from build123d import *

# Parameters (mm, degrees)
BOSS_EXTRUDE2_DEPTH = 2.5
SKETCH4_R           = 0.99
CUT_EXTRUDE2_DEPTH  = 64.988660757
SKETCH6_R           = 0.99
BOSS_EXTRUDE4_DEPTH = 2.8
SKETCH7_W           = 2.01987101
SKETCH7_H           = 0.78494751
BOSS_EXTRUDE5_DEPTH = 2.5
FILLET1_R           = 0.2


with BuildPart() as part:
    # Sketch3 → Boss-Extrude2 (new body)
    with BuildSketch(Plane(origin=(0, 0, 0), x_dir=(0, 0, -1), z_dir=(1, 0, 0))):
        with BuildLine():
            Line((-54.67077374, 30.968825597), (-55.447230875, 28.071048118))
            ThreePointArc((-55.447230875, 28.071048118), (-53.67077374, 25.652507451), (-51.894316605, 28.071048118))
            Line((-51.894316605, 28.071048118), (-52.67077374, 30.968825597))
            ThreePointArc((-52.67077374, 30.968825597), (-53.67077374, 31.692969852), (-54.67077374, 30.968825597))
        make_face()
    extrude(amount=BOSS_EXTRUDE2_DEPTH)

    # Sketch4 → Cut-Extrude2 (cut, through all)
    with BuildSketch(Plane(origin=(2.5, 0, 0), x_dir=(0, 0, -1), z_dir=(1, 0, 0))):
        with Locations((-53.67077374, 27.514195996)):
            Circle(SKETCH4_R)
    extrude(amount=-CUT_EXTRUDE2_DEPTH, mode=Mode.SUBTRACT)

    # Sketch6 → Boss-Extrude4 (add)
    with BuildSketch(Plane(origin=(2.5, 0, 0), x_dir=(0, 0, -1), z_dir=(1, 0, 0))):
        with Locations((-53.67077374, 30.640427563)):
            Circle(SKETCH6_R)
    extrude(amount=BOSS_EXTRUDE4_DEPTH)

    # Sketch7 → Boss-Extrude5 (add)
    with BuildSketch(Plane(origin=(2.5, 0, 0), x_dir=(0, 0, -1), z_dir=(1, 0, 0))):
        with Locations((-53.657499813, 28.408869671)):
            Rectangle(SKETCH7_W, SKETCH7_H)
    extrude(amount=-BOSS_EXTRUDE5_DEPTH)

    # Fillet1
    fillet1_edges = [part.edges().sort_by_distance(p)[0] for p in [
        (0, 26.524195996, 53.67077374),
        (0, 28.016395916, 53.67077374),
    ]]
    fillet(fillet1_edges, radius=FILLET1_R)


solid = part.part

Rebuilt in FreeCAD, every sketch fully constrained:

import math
import FreeCAD as App
import Part
import Sketcher
from FreeCAD import Vector
Q = App.Units.Quantity


def edges_at(feature, points):
    """Names of the edges that pass closest to the given points."""
    edges = feature.Shape.Edges
    near = lambda p: min(range(len(edges)), key=lambda i: edges[i].distToShape(Part.Vertex(*p))[0])
    return sorted({f"Edge{near(p) + 1}" for p in points})

doc = App.newDocument("Part")
body = doc.addObject("PartDesign::Body", "Body")

sketch1 = body.newObject("Sketcher::SketchObject", "Sketch")
sketch1.AttachmentSupport = (doc.getObject("YZ_Plane"), [""])
sketch1.MapMode = "FlatFace"
sketch1.addGeometry(Part.LineSegment(Vector(30.968826, 54.670774, 0), Vector(28.071048, 55.447231, 0)), False)
sketch1.addGeometry(Part.ArcOfCircle(Part.Circle(Vector(27.514196, 53.670774, 0), Vector(0, 0, 1), 1.861689), math.radians(72.595765), math.radians(287.404235)), False)
sketch1.addGeometry(Part.LineSegment(Vector(28.071048, 51.894317, 0), Vector(30.968826, 52.670774, 0)), False)
sketch1.addGeometry(Part.ArcOfCircle(Part.Circle(Vector(30.640428, 53.670774, 0), Vector(0, 0, 1), 1.052542), math.radians(-71.819922), math.radians(71.819922)), False)
sketch1.addConstraint(Sketcher.Constraint("Coincident", 0, 2, 1, 1))
sketch1.addConstraint(Sketcher.Constraint("Coincident", 1, 2, 2, 1))
sketch1.addConstraint(Sketcher.Constraint("Coincident", 2, 2, 3, 1))
sketch1.addConstraint(Sketcher.Constraint("Coincident", 3, 2, 0, 1))
sketch1.addConstraint(Sketcher.Constraint("Horizontal", 1, 3, 3, 3))
sketch1.addConstraint(Sketcher.Constraint("Vertical", 0, 2, 1, 2))
sketch1.addConstraint(Sketcher.Constraint("Vertical", 2, 2, 3, 2))
sketch1.addConstraint(Sketcher.Constraint("Angle", 0, Q("165 deg")))
sketch1.addConstraint(Sketcher.Constraint("Distance", 0, 3.0))
sketch1.addConstraint(Sketcher.Constraint("DistanceY", 2, 2, 3, 3, 1.0))
sketch1.addConstraint(Sketcher.Constraint("Radius", 1, 1.861689))
sketch1.addConstraint(Sketcher.Constraint("Radius", 3, 1.052542))
sketch1.addConstraint(Sketcher.Constraint("DistanceX", -1, 1, 0, 2, 28.071048))
sketch1.addConstraint(Sketcher.Constraint("DistanceY", -1, 1, 0, 2, 55.447231))
pad1 = body.newObject("PartDesign::Pad", "Pad")
pad1.Profile = sketch1
pad1.Length = 2.5

sketch2 = body.newObject("Sketcher::SketchObject", "Sketch001")
sketch2.AttachmentSupport = (doc.getObject("YZ_Plane"), [""])
sketch2.MapMode = "FlatFace"
sketch2.AttachmentOffset = App.Placement(Vector(0, 0, 2.5), App.Rotation())
sketch2.addGeometry(Part.Circle(Vector(27.514196, 53.670774, 0), Vector(0, 0, 1), 0.99), False)
sketch2.addConstraint(Sketcher.Constraint("Diameter", 0, 1.98))
sketch2.addConstraint(Sketcher.Constraint("DistanceX", -1, 1, 0, 3, 27.514196))
sketch2.addConstraint(Sketcher.Constraint("DistanceY", -1, 1, 0, 3, 53.670774))
pocket1 = body.newObject("PartDesign::Pocket", "Pocket")
pocket1.Profile = sketch2
pocket1.Type = "ThroughAll"

sketch3 = body.newObject("Sketcher::SketchObject", "Sketch002")
sketch3.AttachmentSupport = (doc.getObject("YZ_Plane"), [""])
sketch3.MapMode = "FlatFace"
sketch3.AttachmentOffset = App.Placement(Vector(0, 0, 2.5), App.Rotation())
sketch3.addGeometry(Part.Circle(Vector(30.640428, 53.670774, 0), Vector(0, 0, 1), 0.99), False)
sketch3.addConstraint(Sketcher.Constraint("Diameter", 0, 1.98))
sketch3.addConstraint(Sketcher.Constraint("DistanceX", -1, 1, 0, 3, 30.640428))
sketch3.addConstraint(Sketcher.Constraint("DistanceY", -1, 1, 0, 3, 53.670774))
pad2 = body.newObject("PartDesign::Pad", "Pad001")
pad2.Profile = sketch3
pad2.Length = 2.8

sketch4 = body.newObject("Sketcher::SketchObject", "Sketch003")
sketch4.AttachmentSupport = (doc.getObject("YZ_Plane"), [""])
sketch4.MapMode = "FlatFace"
sketch4.AttachmentOffset = App.Placement(Vector(0, 0, 2.5), App.Rotation())
sketch4.addGeometry(Part.LineSegment(Vector(28.801343, 54.667435, 0), Vector(28.016396, 54.667435, 0)), False)
sketch4.addGeometry(Part.LineSegment(Vector(28.016396, 54.667435, 0), Vector(28.016396, 52.647564, 0)), False)
sketch4.addGeometry(Part.LineSegment(Vector(28.016396, 52.647564, 0), Vector(28.801343, 52.647564, 0)), False)
sketch4.addGeometry(Part.LineSegment(Vector(28.801343, 52.647564, 0), Vector(28.801343, 54.667435, 0)), False)
sketch4.addConstraint(Sketcher.Constraint("Coincident", 0, 2, 1, 1))
sketch4.addConstraint(Sketcher.Constraint("Coincident", 1, 2, 2, 1))
sketch4.addConstraint(Sketcher.Constraint("Coincident", 2, 2, 3, 1))
sketch4.addConstraint(Sketcher.Constraint("Coincident", 3, 2, 0, 1))
sketch4.addConstraint(Sketcher.Constraint("Horizontal", 0))
sketch4.addConstraint(Sketcher.Constraint("Vertical", 1))
sketch4.addConstraint(Sketcher.Constraint("Horizontal", 2))
sketch4.addConstraint(Sketcher.Constraint("Vertical", 3))
sketch4.addConstraint(Sketcher.Constraint("DistanceY", 1, 2, 1, 1, 2.019871))
sketch4.addConstraint(Sketcher.Constraint("DistanceX", 0, 2, 0, 1, 0.784948))
sketch4.addConstraint(Sketcher.Constraint("DistanceX", -1, 1, 0, 2, 28.016396))
sketch4.addConstraint(Sketcher.Constraint("DistanceY", -1, 1, 0, 2, 54.667435))
pad3 = body.newObject("PartDesign::Pad", "Pad002")
pad3.Profile = sketch4
pad3.Length = 2.5
pad3.Reversed = True
doc.recompute()

fillet = body.newObject("PartDesign::Fillet", "Fillet")
fillet.Base = (pad3, edges_at(pad3, [(0, 26.524, 53.671), (0, 28.016, 53.671)]))
fillet.Radius = 0.2

doc.recompute()
